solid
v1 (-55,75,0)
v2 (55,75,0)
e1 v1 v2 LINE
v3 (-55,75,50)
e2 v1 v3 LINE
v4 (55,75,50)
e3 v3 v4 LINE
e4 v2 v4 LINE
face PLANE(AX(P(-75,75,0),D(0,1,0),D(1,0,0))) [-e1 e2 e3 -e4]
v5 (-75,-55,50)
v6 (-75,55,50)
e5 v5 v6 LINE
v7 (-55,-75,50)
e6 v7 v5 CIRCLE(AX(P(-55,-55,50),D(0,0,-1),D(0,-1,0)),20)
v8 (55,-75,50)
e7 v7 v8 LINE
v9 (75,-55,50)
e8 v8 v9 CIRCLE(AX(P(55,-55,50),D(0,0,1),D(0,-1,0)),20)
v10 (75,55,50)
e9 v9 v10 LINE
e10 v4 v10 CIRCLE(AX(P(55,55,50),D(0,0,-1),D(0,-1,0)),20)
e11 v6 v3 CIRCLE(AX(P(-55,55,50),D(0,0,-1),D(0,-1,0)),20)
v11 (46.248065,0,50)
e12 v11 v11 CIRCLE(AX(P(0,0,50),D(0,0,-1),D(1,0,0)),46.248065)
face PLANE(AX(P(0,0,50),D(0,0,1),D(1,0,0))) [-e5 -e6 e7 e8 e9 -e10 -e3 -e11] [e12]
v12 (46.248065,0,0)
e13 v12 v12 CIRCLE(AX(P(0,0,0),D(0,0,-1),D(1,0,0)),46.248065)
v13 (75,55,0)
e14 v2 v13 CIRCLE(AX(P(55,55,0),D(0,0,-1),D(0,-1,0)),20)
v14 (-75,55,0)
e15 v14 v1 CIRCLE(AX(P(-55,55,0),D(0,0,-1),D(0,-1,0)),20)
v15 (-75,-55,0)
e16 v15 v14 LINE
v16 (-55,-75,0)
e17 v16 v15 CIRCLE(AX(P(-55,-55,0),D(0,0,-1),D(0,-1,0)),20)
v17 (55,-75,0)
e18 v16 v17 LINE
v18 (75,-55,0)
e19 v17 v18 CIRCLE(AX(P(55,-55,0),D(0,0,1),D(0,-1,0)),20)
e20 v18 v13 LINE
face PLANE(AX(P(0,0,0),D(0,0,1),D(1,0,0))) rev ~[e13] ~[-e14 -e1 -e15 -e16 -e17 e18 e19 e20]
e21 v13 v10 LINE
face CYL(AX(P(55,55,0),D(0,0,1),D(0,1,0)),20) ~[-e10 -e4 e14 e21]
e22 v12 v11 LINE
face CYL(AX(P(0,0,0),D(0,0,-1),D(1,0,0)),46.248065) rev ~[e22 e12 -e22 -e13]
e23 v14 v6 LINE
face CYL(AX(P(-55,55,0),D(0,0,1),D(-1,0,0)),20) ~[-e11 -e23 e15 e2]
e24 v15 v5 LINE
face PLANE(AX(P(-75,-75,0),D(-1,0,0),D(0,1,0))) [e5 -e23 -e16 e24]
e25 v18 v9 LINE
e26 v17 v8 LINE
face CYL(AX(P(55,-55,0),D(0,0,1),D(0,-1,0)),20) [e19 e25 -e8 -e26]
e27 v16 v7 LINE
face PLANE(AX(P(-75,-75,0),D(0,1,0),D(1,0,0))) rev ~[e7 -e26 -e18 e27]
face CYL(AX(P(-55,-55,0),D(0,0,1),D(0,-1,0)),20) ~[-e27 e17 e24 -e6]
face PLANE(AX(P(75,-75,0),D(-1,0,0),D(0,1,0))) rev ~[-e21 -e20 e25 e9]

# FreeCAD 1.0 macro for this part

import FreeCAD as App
import Part
import Sketcher


def edges_at(feature, points):
    """Names of the edges that pass closest to the given points."""
    edges = feature.Shape.Edges
    near = lambda p: min(range(len(edges)), key=lambda i: edges[i].distToShape(Part.Vertex(*p))[0])
    return sorted({f"Edge{near(p) + 1}" for p in points})


def add_polygon(sketch, points):
    """Adds a closed chain of lines whose ends are joined by coincident constraints."""
    first, n = sketch.GeometryCount, len(points)
    for a, b in zip(points, points[1:] + points[:1]):
        sketch.addGeometry(Part.LineSegment(App.Vector(*a, 0), App.Vector(*b, 0)), False)
    for i in range(n):
        sketch.addConstraint(Sketcher.Constraint("Coincident", first + i, 2, first + (i + 1) % n, 1))

doc = App.newDocument("Part")
body = doc.addObject("PartDesign::Body", "Body")

# Sketch on XY plane
sketch1 = doc.addObject("Sketcher::SketchObject", "Sketch")
body.addObject(sketch1)
sketch1.AttachmentSupport = (doc.XY_Plane, [""])
sketch1.MapMode = "FlatFace"
add_polygon(sketch1, [(-75, 75), (-75, -75), (75, -75), (75, 75)])  # lines 0-3
sketch1.addConstraint(Sketcher.Constraint("Vertical", 0))
sketch1.addConstraint(Sketcher.Constraint("Horizontal", 1))
sketch1.addConstraint(Sketcher.Constraint("Vertical", 2))
sketch1.addConstraint(Sketcher.Constraint("Horizontal", 3))
sketch1.addConstraint(Sketcher.Constraint("Symmetric", 0, 2, 2, 2, -1, 1))
sketch1.addConstraint(Sketcher.Constraint("Equal", 3, 0))
sketch1.addConstraint(Sketcher.Constraint("DistanceX", 1, 1, 1, 2, 150.0))
pad1 = doc.addObject("PartDesign::Pad", "Pad")
body.addObject(pad1)
pad1.Profile = sketch1
pad1.Length = 50

# Sketch on XY plane
sketch2 = doc.addObject("Sketcher::SketchObject", "Sketch001")
body.addObject(sketch2)
sketch2.AttachmentSupport = (doc.XY_Plane, [""])
sketch2.MapMode = "FlatFace"
sketch2.addGeometry(Part.Circle(App.Vector(0, 0, 0), App.Vector(0, 0, 1), 46), False)
sketch2.addConstraint(Sketcher.Constraint("Coincident", 0, 3, -1, 1))
sketch2.addConstraint(Sketcher.Constraint("Diameter", 0, 92.49613))
pocket1 = doc.addObject("PartDesign::Pocket", "Pocket")
body.addObject(pocket1)
pocket1.Profile = sketch2
pocket1.Length = 50
pocket1.Reversed = True
doc.recompute()

fillet = doc.addObject("PartDesign::Fillet", "Fillet")
body.addObject(fillet)
fillet.Base = (pocket1, edges_at(pocket1, [(75, -75, 25), (75, 75, 25)]))
fillet.Radius = 20
doc.recompute()

fillet2 = doc.addObject("PartDesign::Fillet", "Fillet001")
body.addObject(fillet2)
fillet2.Base = (fillet, edges_at(fillet, [(-75, -75, 25)]))
fillet2.Radius = 20
doc.recompute()

fillet3 = doc.addObject("PartDesign::Fillet", "Fillet002")
body.addObject(fillet3)
fillet3.Base = (fillet2, edges_at(fillet2, [(-75, 75, 25)]))
fillet3.Radius = 20

doc.recompute()
